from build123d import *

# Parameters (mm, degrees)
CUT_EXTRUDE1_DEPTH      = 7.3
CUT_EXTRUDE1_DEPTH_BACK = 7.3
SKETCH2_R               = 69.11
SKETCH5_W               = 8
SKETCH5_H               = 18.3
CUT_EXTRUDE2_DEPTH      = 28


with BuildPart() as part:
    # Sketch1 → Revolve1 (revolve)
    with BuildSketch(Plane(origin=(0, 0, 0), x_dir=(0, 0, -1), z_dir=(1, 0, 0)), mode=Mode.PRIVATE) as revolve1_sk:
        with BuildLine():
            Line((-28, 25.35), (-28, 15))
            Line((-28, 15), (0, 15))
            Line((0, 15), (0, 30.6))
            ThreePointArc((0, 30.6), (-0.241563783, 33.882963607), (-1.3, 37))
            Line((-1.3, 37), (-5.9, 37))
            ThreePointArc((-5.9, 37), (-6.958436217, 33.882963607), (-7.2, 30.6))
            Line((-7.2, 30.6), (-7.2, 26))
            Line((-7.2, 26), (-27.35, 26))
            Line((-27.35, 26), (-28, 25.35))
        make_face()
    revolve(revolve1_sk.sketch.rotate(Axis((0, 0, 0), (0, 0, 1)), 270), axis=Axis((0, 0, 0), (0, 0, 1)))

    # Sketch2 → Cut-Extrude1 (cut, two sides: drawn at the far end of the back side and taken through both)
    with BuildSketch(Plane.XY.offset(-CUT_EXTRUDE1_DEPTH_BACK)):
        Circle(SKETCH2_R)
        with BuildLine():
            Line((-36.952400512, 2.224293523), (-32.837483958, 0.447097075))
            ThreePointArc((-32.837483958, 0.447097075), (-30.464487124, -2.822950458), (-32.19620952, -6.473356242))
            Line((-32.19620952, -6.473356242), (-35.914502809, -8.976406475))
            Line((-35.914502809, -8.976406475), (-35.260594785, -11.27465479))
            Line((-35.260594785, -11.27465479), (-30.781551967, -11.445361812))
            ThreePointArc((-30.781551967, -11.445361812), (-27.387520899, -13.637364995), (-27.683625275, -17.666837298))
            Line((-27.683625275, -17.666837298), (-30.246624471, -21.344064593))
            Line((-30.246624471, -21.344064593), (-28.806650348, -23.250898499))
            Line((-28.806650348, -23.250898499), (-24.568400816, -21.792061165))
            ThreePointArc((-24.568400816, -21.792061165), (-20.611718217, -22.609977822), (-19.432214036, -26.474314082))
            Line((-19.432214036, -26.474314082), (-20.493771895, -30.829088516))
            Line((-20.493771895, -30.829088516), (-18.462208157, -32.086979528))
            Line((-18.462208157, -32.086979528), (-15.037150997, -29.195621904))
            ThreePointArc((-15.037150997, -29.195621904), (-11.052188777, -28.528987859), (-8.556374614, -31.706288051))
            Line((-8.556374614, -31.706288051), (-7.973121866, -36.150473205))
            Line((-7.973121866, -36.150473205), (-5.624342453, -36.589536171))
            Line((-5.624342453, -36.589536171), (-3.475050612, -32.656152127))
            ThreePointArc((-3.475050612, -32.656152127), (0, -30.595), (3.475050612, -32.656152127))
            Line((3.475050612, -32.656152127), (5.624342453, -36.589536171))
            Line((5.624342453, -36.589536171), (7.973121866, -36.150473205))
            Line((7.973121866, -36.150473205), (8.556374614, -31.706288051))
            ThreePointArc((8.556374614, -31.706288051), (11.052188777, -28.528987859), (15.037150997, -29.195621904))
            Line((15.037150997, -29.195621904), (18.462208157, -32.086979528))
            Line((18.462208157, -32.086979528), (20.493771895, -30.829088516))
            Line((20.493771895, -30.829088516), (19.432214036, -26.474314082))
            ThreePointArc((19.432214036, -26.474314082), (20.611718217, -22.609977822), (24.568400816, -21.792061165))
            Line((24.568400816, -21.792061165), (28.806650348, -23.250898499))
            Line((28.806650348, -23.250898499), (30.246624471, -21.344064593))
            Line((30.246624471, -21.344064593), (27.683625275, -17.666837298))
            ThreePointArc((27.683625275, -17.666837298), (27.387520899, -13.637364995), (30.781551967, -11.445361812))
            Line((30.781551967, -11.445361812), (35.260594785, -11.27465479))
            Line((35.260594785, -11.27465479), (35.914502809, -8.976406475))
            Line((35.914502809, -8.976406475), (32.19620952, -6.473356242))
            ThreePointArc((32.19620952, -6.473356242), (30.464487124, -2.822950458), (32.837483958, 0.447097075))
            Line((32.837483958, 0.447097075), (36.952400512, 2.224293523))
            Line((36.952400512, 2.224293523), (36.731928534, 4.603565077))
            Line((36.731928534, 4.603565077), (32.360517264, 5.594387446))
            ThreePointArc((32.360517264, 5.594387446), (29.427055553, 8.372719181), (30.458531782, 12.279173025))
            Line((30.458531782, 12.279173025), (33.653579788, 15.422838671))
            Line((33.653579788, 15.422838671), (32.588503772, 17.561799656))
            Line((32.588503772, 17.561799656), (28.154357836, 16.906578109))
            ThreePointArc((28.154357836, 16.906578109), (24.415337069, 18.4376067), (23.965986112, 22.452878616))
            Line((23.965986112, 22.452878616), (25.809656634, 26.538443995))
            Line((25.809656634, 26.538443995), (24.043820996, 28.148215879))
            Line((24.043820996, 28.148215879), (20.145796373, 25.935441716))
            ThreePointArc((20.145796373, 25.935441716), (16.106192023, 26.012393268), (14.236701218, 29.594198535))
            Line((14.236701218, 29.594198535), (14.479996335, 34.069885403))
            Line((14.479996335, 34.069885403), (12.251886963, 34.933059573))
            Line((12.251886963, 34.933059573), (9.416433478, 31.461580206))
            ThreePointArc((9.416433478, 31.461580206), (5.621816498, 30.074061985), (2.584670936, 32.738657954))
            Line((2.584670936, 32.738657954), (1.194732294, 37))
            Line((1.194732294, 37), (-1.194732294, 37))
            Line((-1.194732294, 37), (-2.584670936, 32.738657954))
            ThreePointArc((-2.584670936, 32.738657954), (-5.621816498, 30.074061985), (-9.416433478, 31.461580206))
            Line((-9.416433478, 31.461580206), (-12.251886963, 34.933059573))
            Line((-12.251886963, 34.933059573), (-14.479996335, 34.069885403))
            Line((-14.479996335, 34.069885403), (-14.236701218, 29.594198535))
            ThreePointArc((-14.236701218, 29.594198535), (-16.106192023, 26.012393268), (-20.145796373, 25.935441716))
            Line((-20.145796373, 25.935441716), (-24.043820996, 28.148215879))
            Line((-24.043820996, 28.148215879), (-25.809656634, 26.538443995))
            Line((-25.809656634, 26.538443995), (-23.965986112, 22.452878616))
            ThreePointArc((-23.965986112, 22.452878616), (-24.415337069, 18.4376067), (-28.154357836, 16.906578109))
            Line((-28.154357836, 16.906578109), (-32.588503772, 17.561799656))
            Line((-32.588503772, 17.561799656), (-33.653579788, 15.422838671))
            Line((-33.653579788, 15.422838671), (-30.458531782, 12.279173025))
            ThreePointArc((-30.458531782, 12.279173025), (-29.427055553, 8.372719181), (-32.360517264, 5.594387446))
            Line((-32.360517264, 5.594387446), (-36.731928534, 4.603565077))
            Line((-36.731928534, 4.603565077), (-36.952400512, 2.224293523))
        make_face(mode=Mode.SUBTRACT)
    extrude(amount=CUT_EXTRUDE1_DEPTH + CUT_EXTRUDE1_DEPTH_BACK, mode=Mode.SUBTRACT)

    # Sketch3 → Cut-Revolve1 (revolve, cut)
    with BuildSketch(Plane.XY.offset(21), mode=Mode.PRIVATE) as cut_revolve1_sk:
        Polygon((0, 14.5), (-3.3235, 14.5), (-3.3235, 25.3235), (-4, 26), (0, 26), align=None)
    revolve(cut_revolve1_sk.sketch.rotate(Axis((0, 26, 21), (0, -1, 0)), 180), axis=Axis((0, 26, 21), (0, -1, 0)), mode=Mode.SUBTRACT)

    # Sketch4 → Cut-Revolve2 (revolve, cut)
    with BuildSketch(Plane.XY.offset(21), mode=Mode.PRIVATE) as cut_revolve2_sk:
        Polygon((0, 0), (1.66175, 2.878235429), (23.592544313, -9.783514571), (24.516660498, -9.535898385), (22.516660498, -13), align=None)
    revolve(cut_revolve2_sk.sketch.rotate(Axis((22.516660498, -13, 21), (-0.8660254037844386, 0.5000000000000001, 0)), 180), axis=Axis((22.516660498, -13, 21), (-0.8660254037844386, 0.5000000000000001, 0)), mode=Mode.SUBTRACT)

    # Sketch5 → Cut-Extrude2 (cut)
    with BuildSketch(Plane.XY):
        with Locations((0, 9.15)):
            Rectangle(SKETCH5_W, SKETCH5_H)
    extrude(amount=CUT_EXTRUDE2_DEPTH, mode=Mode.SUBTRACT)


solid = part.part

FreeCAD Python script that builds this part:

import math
import FreeCAD as App
import Part
import Sketcher
from FreeCAD import Vector
Q = App.Units.Quantity

doc = App.newDocument("Part")
params = doc.addObject("Spreadsheet::Sheet", "Params")
for row, (alias, value) in enumerate([
    ("sketch1_radius", "13 mm"),
    ("sketch1_height", "28 mm"),
    ("sketch1_width", "15.6 mm"),
    ("sketch1_width2", "4.6 mm"),
    ("sketch1_width3", "10.35 mm"),
    ("revolution_angle", "360 deg"),
    ("sketch2_diameter", "138.22 mm"),
    ("sketch2_radius", "3.96 mm"),
    ("sketch3_width", "4 mm"),
    ("sketch3_height", "11.5 mm"),
    ("groove_angle", "360 deg"),
    ("sketch4_length", "26 mm"),
    ("sketch4_length2", "4 mm"),
    ("groove2_angle", "360 deg"),
    ("sketch5_width", "8 mm"),
    ("sketch5_height", "18.3 mm"),
    ("pocket2_length", "28 mm"),
], start=1):
    params.set(f"A{row}", alias)
    params.set(f"B{row}", "=" + value)
    params.setAlias(f"B{row}", alias)

body = doc.addObject("PartDesign::Body", "Body")

# Sketch on YZ plane
sketch1 = doc.addObject("Sketcher::SketchObject", "Sketch")
body.addObject(sketch1)
sketch1.AttachmentSupport = (doc.YZ_Plane, [""])
sketch1.MapMode = "FlatFace"
sketch1.addGeometry([
    Part.LineSegment(Vector(25.35, 28, 0), Vector(15, 28, 0)),  # 0
    Part.LineSegment(Vector(15, 28, 0), Vector(15, 0, 0)),  # 1
    Part.LineSegment(Vector(15, 0, 0), Vector(30.6, 0, 0)),  # 2
    Part.ArcOfCircle(Part.Circle(Vector(31.295185, 12.981399, 0), Vector(0, 0, 1), 13), math.radians(-93.065396), math.radians(-63.970621)),  # 3
    Part.LineSegment(Vector(37, 1.3, 0), Vector(37, 5.9, 0)),  # 4
    Part.ArcOfCircle(Part.Circle(Vector(31.295185, -5.781399, 0), Vector(0, 0, 1), 13), math.radians(63.970621), math.radians(93.065396)),  # 5
    Part.LineSegment(Vector(30.6, 7.2, 0), Vector(26, 7.2, 0)),  # 6
    Part.LineSegment(Vector(26, 7.2, 0), Vector(26, 27.35, 0)),  # 7
    Part.LineSegment(Vector(26, 27.35, 0), Vector(25.35, 28, 0)),  # 8
], False)
sketch1.addConstraint([
    Sketcher.Constraint("Coincident", 0, 2, 1, 1),
    Sketcher.Constraint("Coincident", 1, 2, 2, 1),
    Sketcher.Constraint("Coincident", 2, 2, 3, 1),
    Sketcher.Constraint("Coincident", 3, 2, 4, 1),
    Sketcher.Constraint("Coincident", 4, 2, 5, 1),
    Sketcher.Constraint("Coincident", 5, 2, 6, 1),
    Sketcher.Constraint("Coincident", 6, 2, 7, 1),
    Sketcher.Constraint("Coincident", 7, 2, 8, 1),
    Sketcher.Constraint("Coincident", 8, 2, 0, 1),
    Sketcher.Constraint("Horizontal", 0),
    Sketcher.Constraint("Vertical", 1),
    Sketcher.Constraint("Horizontal", 2),
    Sketcher.Constraint("Vertical", 4),
    Sketcher.Constraint("Horizontal", 6),
    Sketcher.Constraint("Vertical", 7),
    Sketcher.Constraint("Equal", 3, 5),
    Sketcher.Constraint("PointOnObject", 1, 2, -1),
    Sketcher.Constraint("Vertical", 3, 3, 5, 3),
    Sketcher.Constraint("Vertical", 2, 2, 5, 2),
    Sketcher.Constraint("Equal", 6, 4),
    Sketcher.Constraint("Radius", 3, Q("13 mm")),
    Sketcher.Constraint("DistanceY", 1, 2, 1, 1, Q("28 mm")),
    Sketcher.Constraint("Angle", 8, Q("135 deg")),
    Sketcher.Constraint("DistanceX", 2, 1, 2, 2, Q("15.6 mm")),
    Sketcher.Constraint("DistanceX", 6, 2, 6, 1, Q("4.6 mm")),
    Sketcher.Constraint("DistanceX", -1, 1, 0, 2, Q("15 mm")),
    Sketcher.Constraint("DistanceX", -1, 1, 3, 2, Q("37 mm")),
    Sketcher.Constraint("DistanceX", 0, 2, 0, 1, Q("10.35 mm")),
    Sketcher.Constraint("DistanceY", 7, 1, 7, 2, Q("20.15 mm")),
])
sketch1.setExpression("Constraints[20]", "Params.sketch1_radius")
sketch1.setExpression("Constraints[21]", "Params.sketch1_height")
sketch1.setExpression("Constraints[23]", "Params.sketch1_width")
sketch1.setExpression("Constraints[24]", "Params.sketch1_width2")
sketch1.setExpression("Constraints[27]", "Params.sketch1_width3")
revolution = doc.addObject("PartDesign::Revolution", "Revolution")
body.addObject(revolution)
revolution.Profile = sketch1
revolution.ReferenceAxis = (sketch1, ["V_Axis"])
revolution.setExpression("Angle", "Params.revolution_angle")

# Sketch on XY plane
sketch2 = doc.addObject("Sketcher::SketchObject", "Sketch001")
body.addObject(sketch2)
sketch2.AttachmentSupport = (doc.XY_Plane, [""])
sketch2.MapMode = "FlatFace"
sketch2.addGeometry([
    Part.Circle(Vector(0, 0, 0), Vector(0, 0, 1), 69.11),  # 0
    Part.LineSegment(Vector(-32.837484, 0.447097, 0), Vector(-36.952401, 2.224294, 0)),  # 1
    Part.LineSegment(Vector(-36.952401, 2.224294, 0), Vector(-36.731929, 4.603565, 0)),  # 2
    Part.LineSegment(Vector(-36.731929, 4.603565, 0), Vector(-32.360517, 5.594387, 0)),  # 3
    Part.ArcOfCircle(Part.Circle(Vector(-33.235885, 9.456425, 0), Vector(0, 0, 1), 3.96), math.radians(-77.229142), math.radians(45.464436)),  # 4
    Part.LineSegment(Vector(-30.458532, 12.279173, 0), Vector(-33.65358, 15.422839, 0)),  # 5
    Part.LineSegment(Vector(-33.65358, 15.422839, 0), Vector(-32.588504, 17.5618, 0)),  # 6
    Part.LineSegment(Vector(-32.588504, 17.5618, 0), Vector(-28.154358, 16.906578, 0)),  # 7
    Part.ArcOfCircle(Part.Circle(Vector(-27.575485, 20.82404, 0), Vector(0, 0, 1), 3.96), math.radians(-98.405613), math.radians(24.287966)),  # 8
    Part.LineSegment(Vector(-23.965986, 22.452879, 0), Vector(-25.809657, 26.538444, 0)),  # 9
    Part.LineSegment(Vector(-25.809657, 26.538444, 0), Vector(-24.043821, 28.148216, 0)),  # 10
    Part.LineSegment(Vector(-24.043821, 28.148216, 0), Vector(-20.145796, 25.935442, 0)),  # 11
    Part.ArcOfCircle(Part.Circle(Vector(-18.190863, 29.379253, 0), Vector(0, 0, 1), 3.96), math.radians(-119.582083), math.radians(3.111495)),  # 12
    Part.LineSegment(Vector(-14.236701, 29.594199, 0), Vector(-14.479996, 34.069885, 0)),  # 13
    Part.LineSegment(Vector(-14.479996, 34.069885, 0), Vector(-12.251887, 34.93306, 0)),  # 14
    Part.LineSegment(Vector(-12.251887, 34.93306, 0), Vector(-9.416433, 31.46158, 0)),  # 15
    Part.ArcOfCircle(Part.Circle(Vector(-6.349465, 33.966635, 0), Vector(0, 0, 1), 3.96), math.radians(-140.758554), math.radians(-18.064976)),  # 16
    Part.LineSegment(Vector(-2.584671, 32.738658, 0), Vector(-1.194732, 37, 0)),  # 17
    Part.LineSegment(Vector(-1.194732, 37, 0), Vector(1.194732, 37, 0)),  # 18
    Part.LineSegment(Vector(1.194732, 37, 0), Vector(2.584671, 32.738658, 0)),  # 19
    Part.ArcOfCircle(Part.Circle(Vector(6.349465, 33.966635, 0), Vector(0, 0, 1), 3.96), math.radians(-161.935024), math.radians(-39.241446)),  # 20
    Part.LineSegment(Vector(9.416433, 31.46158, 0), Vector(12.251887, 34.93306, 0)),  # 21
    Part.LineSegment(Vector(12.251887, 34.93306, 0), Vector(14.479996, 34.069885, 0)),  # 22
    Part.LineSegment(Vector(14.479996, 34.069885, 0), Vector(14.236701, 29.594199, 0)),  # 23
    Part.ArcOfCircle(Part.Circle(Vector(18.190863, 29.379253, 0), Vector(0, 0, 1), 3.96), math.radians(176.888505), math.radians(299.582083)),  # 24
    Part.LineSegment(Vector(20.145796, 25.935442, 0), Vector(24.043821, 28.148216, 0)),  # 25
    Part.LineSegment(Vector(24.043821, 28.148216, 0), Vector(25.809657, 26.538444, 0)),  # 26
    Part.LineSegment(Vector(25.809657, 26.538444, 0), Vector(23.965986, 22.452879, 0)),  # 27
    Part.ArcOfCircle(Part.Circle(Vector(27.575485, 20.82404, 0), Vector(0, 0, 1), 3.96), math.radians(155.712034), math.radians(278.405613)),  # 28
    Part.LineSegment(Vector(28.154358, 16.906578, 0), Vector(32.588504, 17.5618, 0)),  # 29
    Part.LineSegment(Vector(32.588504, 17.5618, 0), Vector(33.65358, 15.422839, 0)),  # 30
    Part.LineSegment(Vector(33.65358, 15.422839, 0), Vector(30.458532, 12.279173, 0)),  # 31
    Part.ArcOfCircle(Part.Circle(Vector(33.235885, 9.456425, 0), Vector(0, 0, 1), 3.96), math.radians(134.535564), math.radians(257.229142)),  # 32
    Part.LineSegment(Vector(32.360517, 5.594387, 0), Vector(36.731929, 4.603565, 0)),  # 33
    Part.LineSegment(Vector(36.731929, 4.603565, 0), Vector(36.952401, 2.224294, 0)),  # 34
    Part.LineSegment(Vector(36.952401, 2.224294, 0), Vector(32.837484, 0.447097, 0)),  # 35
    Part.ArcOfCircle(Part.Circle(Vector(34.407594, -3.188333, 0), Vector(0, 0, 1), 3.96), math.radians(113.359093), math.radians(236.052671)),  # 36
    Part.LineSegment(Vector(32.19621, -6.473356, 0), Vector(35.914503, -8.976406, 0)),  # 37
    Part.LineSegment(Vector(35.914503, -8.976406, 0), Vector(35.260595, -11.274655, 0)),  # 38
    Part.LineSegment(Vector(35.260595, -11.274655, 0), Vector(30.781552, -11.445362, 0)),  # 39
    Part.ArcOfCircle(Part.Circle(Vector(30.932368, -15.402489, 0), Vector(0, 0, 1), 3.96), math.radians(92.182623), math.radians(214.876201)),  # 40
    Part.LineSegment(Vector(27.683625, -17.666837, 0), Vector(30.246624, -21.344065, 0)),  # 41
    Part.LineSegment(Vector(30.246624, -21.344065, 0), Vector(28.80665, -23.250898, 0)),  # 42
    Part.LineSegment(Vector(28.80665, -23.250898, 0), Vector(24.568401, -21.792061, 0)),  # 43
    Part.ArcOfCircle(Part.Circle(Vector(23.279553, -25.536453, 0), Vector(0, 0, 1), 3.96), math.radians(71.006152), math.radians(193.69973)),  # 44
    Part.LineSegment(Vector(19.432214, -26.474314, 0), Vector(20.493772, -30.829089, 0)),  # 45
    Part.LineSegment(Vector(20.493772, -30.829089, 0), Vector(18.462208, -32.08698, 0)),  # 46
    Part.LineSegment(Vector(18.462208, -32.08698, 0), Vector(15.037151, -29.195622, 0)),  # 47
    Part.ArcOfCircle(Part.Circle(Vector(12.482706, -32.221578, 0), Vector(0, 0, 1), 3.96), math.radians(49.829681), math.radians(172.52326)),  # 48
    Part.LineSegment(Vector(8.556375, -31.706288, 0), Vector(7.973122, -36.150473, 0)),  # 49
    Part.LineSegment(Vector(7.973122, -36.150473, 0), Vector(5.624342, -36.589536, 0)),  # 50
    Part.LineSegment(Vector(5.624342, -36.589536, 0), Vector(3.475051, -32.656152, 0)),  # 51
    Part.ArcOfCircle(Part.Circle(Vector(0, -34.555, 0), Vector(0, 0, 1), 3.96), math.radians(28.653211), math.radians(151.346789)),  # 52
    Part.LineSegment(Vector(-3.475051, -32.656152, 0), Vector(-5.624342, -36.589536, 0)),  # 53
    Part.LineSegment(Vector(-5.624342, -36.589536, 0), Vector(-7.973122, -36.150473, 0)),  # 54
    Part.LineSegment(Vector(-7.973122, -36.150473, 0), Vector(-8.556375, -31.706288, 0)),  # 55
    Part.ArcOfCircle(Part.Circle(Vector(-12.482706, -32.221578, 0), Vector(0, 0, 1), 3.96), math.radians(7.47674), math.radians(130.170319)),  # 56
    Part.LineSegment(Vector(-15.037151, -29.195622, 0), Vector(-18.462208, -32.08698, 0)),  # 57
    Part.LineSegment(Vector(-18.462208, -32.08698, 0), Vector(-20.493772, -30.829089, 0)),  # 58
    Part.LineSegment(Vector(-20.493772, -30.829089, 0), Vector(-19.432214, -26.474314, 0)),  # 59
    Part.ArcOfCircle(Part.Circle(Vector(-23.279553, -25.536453, 0), Vector(0, 0, 1), 3.96), math.radians(-13.69973), math.radians(108.993848)),  # 60
    Part.LineSegment(Vector(-24.568401, -21.792061, 0), Vector(-28.80665, -23.250898, 0)),  # 61
    Part.LineSegment(Vector(-28.80665, -23.250898, 0), Vector(-30.246624, -21.344065, 0)),  # 62
    Part.LineSegment(Vector(-30.246624, -21.344065, 0), Vector(-27.683625, -17.666837, 0)),  # 63
    Part.ArcOfCircle(Part.Circle(Vector(-30.932368, -15.402489, 0), Vector(0, 0, 1), 3.96), math.radians(-34.876201), math.radians(87.817377)),  # 64
    Part.LineSegment(Vector(-30.781552, -11.445362, 0), Vector(-35.260595, -11.274655, 0)),  # 65
    Part.LineSegment(Vector(-35.260595, -11.274655, 0), Vector(-35.914503, -8.976406, 0)),  # 66
    Part.LineSegment(Vector(-35.914503, -8.976406, 0), Vector(-32.19621, -6.473356, 0)),  # 67
    Part.ArcOfCircle(Part.Circle(Vector(-34.407594, -3.188333, 0), Vector(0, 0, 1), 3.96), math.radians(-56.052671), math.radians(66.640907)),  # 68
], False)
sketch2.addConstraint([
    Sketcher.Constraint("Coincident", 1, 2, 2, 1),
    Sketcher.Constraint("Coincident", 2, 2, 3, 1),
    Sketcher.Constraint("Tangent", 3, 2, 4, 1),
    Sketcher.Constraint("Tangent", 4, 2, 5, 1),
    Sketcher.Constraint("Coincident", 5, 2, 6, 1),
    Sketcher.Constraint("Coincident", 6, 2, 7, 1),
    Sketcher.Constraint("Tangent", 7, 2, 8, 1),
    Sketcher.Constraint("Tangent", 8, 2, 9, 1),
    Sketcher.Constraint("Coincident", 9, 2, 10, 1),
    Sketcher.Constraint("Coincident", 10, 2, 11, 1),
    Sketcher.Constraint("Tangent", 11, 2, 12, 1),
    Sketcher.Constraint("Tangent", 12, 2, 13, 1),
    Sketcher.Constraint("Coincident", 13, 2, 14, 1),
    Sketcher.Constraint("Coincident", 14, 2, 15, 1),
    Sketcher.Constraint("Tangent", 15, 2, 16, 1),
    Sketcher.Constraint("Tangent", 16, 2, 17, 1),
    Sketcher.Constraint("Coincident", 17, 2, 18, 1),
    Sketcher.Constraint("Coincident", 18, 2, 19, 1),
    Sketcher.Constraint("Tangent", 19, 2, 20, 1),
    Sketcher.Constraint("Tangent", 20, 2, 21, 1),
    Sketcher.Constraint("Coincident", 21, 2, 22, 1),
    Sketcher.Constraint("Coincident", 22, 2, 23, 1),
    Sketcher.Constraint("Tangent", 23, 2, 24, 1),
    Sketcher.Constraint("Tangent", 24, 2, 25, 1),
    Sketcher.Constraint("Coincident", 25, 2, 26, 1),
    Sketcher.Constraint("Coincident", 26, 2, 27, 1),
    Sketcher.Constraint("Tangent", 27, 2, 28, 1),
    Sketcher.Constraint("Tangent", 28, 2, 29, 1),
    Sketcher.Constraint("Coincident", 29, 2, 30, 1),
    Sketcher.Constraint("Coincident", 30, 2, 31, 1),
    Sketcher.Constraint("Tangent", 31, 2, 32, 1),
    Sketcher.Constraint("Tangent", 32, 2, 33, 1),
    Sketcher.Constraint("Coincident", 33, 2, 34, 1),
    Sketcher.Constraint("Coincident", 34, 2, 35, 1),
    Sketcher.Constraint("Tangent", 35, 2, 36, 1),
    Sketcher.Constraint("Tangent", 36, 2, 37, 1),
    Sketcher.Constraint("Coincident", 37, 2, 38, 1),
    Sketcher.Constraint("Coincident", 38, 2, 39, 1),
    Sketcher.Constraint("Tangent", 39, 2, 40, 1),
    Sketcher.Constraint("Tangent", 40, 2, 41, 1),
    Sketcher.Constraint("Coincident", 41, 2, 42, 1),
    Sketcher.Constraint("Coincident", 42, 2, 43, 1),
    Sketcher.Constraint("Tangent", 43, 2, 44, 1),
    Sketcher.Constraint("Tangent", 44, 2, 45, 1),
    Sketcher.Constraint("Coincident", 45, 2, 46, 1),
    Sketcher.Constraint("Coincident", 46, 2, 47, 1),
    Sketcher.Constraint("Tangent", 47, 2, 48, 1),
    Sketcher.Constraint("Tangent", 48, 2, 49, 1),
    Sketcher.Constraint("Coincident", 49, 2, 50, 1),
    Sketcher.Constraint("Coincident", 50, 2, 51, 1),
    Sketcher.Constraint("Tangent", 51, 2, 52, 1),
    Sketcher.Constraint("Tangent", 52, 2, 53, 1),
    Sketcher.Constraint("Coincident", 53, 2, 54, 1),
    Sketcher.Constraint("Coincident", 54, 2, 55, 1),
    Sketcher.Constraint("Tangent", 55, 2, 56, 1),
    Sketcher.Constraint("Tangent", 56, 2, 57, 1),
    Sketcher.Constraint("Coincident", 57, 2, 58, 1),
    Sketcher.Constraint("Coincident", 58, 2, 59, 1),
    Sketcher.Constraint("Tangent", 59, 2, 60, 1),
    Sketcher.Constraint("Tangent", 60, 2, 61, 1),
    Sketcher.Constraint("Coincident", 61, 2, 62, 1),
    Sketcher.Constraint("Coincident", 62, 2, 63, 1),
    Sketcher.Constraint("Tangent", 63, 2, 64, 1),
    Sketcher.Constraint("Tangent", 64, 2, 65, 1),
    Sketcher.Constraint("Coincident", 65, 2, 66, 1),
    Sketcher.Constraint("Coincident", 66, 2, 67, 1),
    Sketcher.Constraint("Tangent", 67, 2, 68, 1),
    Sketcher.Constraint("Tangent", 68, 2, 1, 1),
    Sketcher.Constraint("Horizontal", 18),
    Sketcher.Constraint("Coincident", 0, 3, -1, 1),
    Sketcher.Constraint("Equal", 4, 8),
    Sketcher.Constraint("Equal", 8, 12),
    Sketcher.Constraint("Equal", 12, 16),
    Sketcher.Constraint("Equal", 16, 20),
    Sketcher.Constraint("Equal", 20, 24),
    Sketcher.Constraint("Equal", 24, 28),
    Sketcher.Constraint("Equal", 28, 32),
    Sketcher.Constraint("Equal", 32, 36),
    Sketcher.Constraint("Equal", 36, 40),
    Sketcher.Constraint("Equal", 40, 44),
    Sketcher.Constraint("Equal", 44, 48),
    Sketcher.Constraint("Equal", 48, 52),
    Sketcher.Constraint("Equal", 52, 56),
    Sketcher.Constraint("Equal", 56, 60),
    Sketcher.Constraint("Equal", 60, 64),
    Sketcher.Constraint("Equal", 64, 68),
    Sketcher.Constraint("Symmetric", 16, 3, 20, 3, -2),
    Sketcher.Constraint("Symmetric", 12, 3, 24, 3, -2),
    Sketcher.Constraint("Symmetric", 8, 3, 28, 3, -2),
    Sketcher.Constraint("Symmetric", 4, 3, 32, 3, -2),
    Sketcher.Constraint("Symmetric", 48, 3, 56, 3, -2),
    Sketcher.Constraint("Symmetric", 44, 3, 60, 3, -2),
    Sketcher.Constraint("Symmetric", 40, 3, 64, 3, -2),
    Sketcher.Constraint("Symmetric", 36, 3, 68, 3, -2),
    Sketcher.Constraint("Symmetric", 14, 2, 21, 2, -2),
    Sketcher.Constraint("Symmetric", 13, 2, 22, 2, -2),
    Sketcher.Constraint("Symmetric", 10, 2, 25, 2, -2),
    Sketcher.Constraint("Symmetric", 9, 2, 26, 2, -2),
    Sketcher.Constraint("Symmetric", 6, 2, 29, 2, -2),
    Sketcher.Constraint("Symmetric", 5, 2, 30, 2, -2),
    Sketcher.Constraint("Symmetric", 2, 2, 33, 2, -2),
    Sketcher.Constraint("Symmetric", 1, 2, 34, 2, -2),
    Sketcher.Constraint("Symmetric", 51, 2, 52, 2, -2),
    Sketcher.Constraint("Symmetric", 49, 2, 54, 2, -2),
    Sketcher.Constraint("Symmetric", 46, 2, 57, 2, -2),
    Sketcher.Constraint("Symmetric", 45, 2, 58, 2, -2),
    Sketcher.Constraint("Symmetric", 42, 2, 61, 2, -2),
    Sketcher.Constraint("Symmetric", 41, 2, 62, 2, -2),
    Sketcher.Constraint("Symmetric", 38, 2, 65, 2, -2),
    Sketcher.Constraint("Symmetric", 37, 2, 66, 2, -2),
    Sketcher.Constraint("Horizontal", 16, 2, 19, 2),
    Sketcher.Constraint("Horizontal", 50, 2, 53, 2),
    Sketcher.Constraint("Equal", 1, 3),
    Sketcher.Constraint("Equal", 3, 5),
    Sketcher.Constraint("Equal", 2, 6),
    Sketcher.Constraint("Equal", 5, 7),
    Sketcher.Constraint("Equal", 7, 9),
    Sketcher.Constraint("Equal", 6, 10),
    Sketcher.Constraint("Equal", 9, 11),
    Sketcher.Constraint("Equal", 11, 13),
    Sketcher.Constraint("Equal", 10, 14),
    Sketcher.Constraint("Equal", 13, 15),
    Sketcher.Constraint("Equal", 15, 17),
    Sketcher.Constraint("Equal", 35, 37),
    Sketcher.Constraint("Equal", 34, 38),
    Sketcher.Constraint("Equal", 37, 39),
    Sketcher.Constraint("Equal", 39, 41),
    Sketcher.Constraint("Equal", 38, 42),
    Sketcher.Constraint("Equal", 41, 43),
    Sketcher.Constraint("Equal", 43, 45),
    Sketcher.Constraint("Equal", 42, 46),
    Sketcher.Constraint("Equal", 45, 47),
    Sketcher.Constraint("Equal", 47, 49),
    Sketcher.Constraint("Equal", 46, 50),
    Sketcher.Constraint("Equal", 49, 51),
    Sketcher.Constraint("Diameter", 0, Q("138.22 mm")),
    Sketcher.Constraint("Radius", 4, Q("3.96 mm")),
    Sketcher.Constraint("DistanceY", -1, 1, 17, 2, Q("37 mm")),
    Sketcher.Constraint("DistanceY", 52, 3, -1, 1, Q("34.555 mm")),
    Sketcher.Constraint("DistanceX", 1, 2, -1, 1, Q("36.952401 mm")),
    Sketcher.Constraint("DistanceY", -1, 1, 6, 2, Q("17.5618 mm")),
    Sketcher.Constraint("DistanceX", 12, 2, -1, 1, Q("14.236701 mm")),
    Sketcher.Constraint("DistanceY", -1, 1, 12, 2, Q("29.594199 mm")),
    Sketcher.Constraint("DistanceY", 42, 2, -1, 1, Q("23.250898 mm")),
    Sketcher.Constraint("DistanceX", -1, 1, 43, 2, Q("24.568401 mm")),
    Sketcher.Constraint("DistanceX", 18, 1, 18, 2, Q("2.389465 mm")),
    Sketcher.Constraint("DistanceY", -1, 1, 8, 3, Q("20.82404 mm")),
    Sketcher.Constraint("DistanceY", 40, 3, -1, 1, Q("15.402489 mm")),
    Sketcher.Constraint("DistanceX", 2, 2, -1, 1, Q("36.731929 mm")),
    Sketcher.Constraint("DistanceX", 4, 2, -1, 1, Q("30.458532 mm")),
    Sketcher.Constraint("DistanceX", 5, 2, -1, 1, Q("33.65358 mm")),
    Sketcher.Constraint("DistanceY", -1, 1, 5, 2, Q("15.422839 mm")),
    Sketcher.Constraint("DistanceY", -1, 1, 8, 2, Q("22.452879 mm")),
    Sketcher.Constraint("DistanceX", 10, 2, -1, 1, Q("24.043821 mm")),
    Sketcher.Constraint("DistanceY", -1, 1, 11, 2, Q("25.935442 mm")),
    Sketcher.Constraint("DistanceY", -1, 1, 14, 2, Q("34.93306 mm")),
    Sketcher.Constraint("DistanceY", -1, 1, 15, 2, Q("31.46158 mm")),
    Sketcher.Constraint("DistanceX", -1, 1, 36, 2, Q("32.19621 mm")),
    Sketcher.Constraint("DistanceX", -1, 1, 39, 2, Q("30.781552 mm")),
    Sketcher.Constraint("DistanceY", 39, 2, -1, 1, Q("11.445362 mm")),
    Sketcher.Constraint("DistanceX", -1, 1, 42, 2, Q("28.80665 mm")),
    Sketcher.Constraint("DistanceX", -1, 1, 45, 2, Q("20.493772 mm")),
    Sketcher.Constraint("DistanceX", -1, 1, 46, 2, Q("18.462208 mm")),
    Sketcher.Constraint("DistanceX", -1, 1, 47, 2, Q("15.037151 mm")),
    Sketcher.Constraint("DistanceY", 48, 2, -1, 1, Q("31.706288 mm")),
])
sketch2.setExpression("Constraints[135]", "Params.sketch2_diameter")
sketch2.setExpression("Constraints[136]", "Params.sketch2_radius")
pocket1 = doc.addObject("PartDesign::Pocket", "Pocket")
body.addObject(pocket1)
pocket1.Profile = sketch2
pocket1.Type = "ThroughAll"
pocket1.Midplane = True

# Sketch on XY plane
sketch3 = doc.addObject("Sketcher::SketchObject", "Sketch002")
body.addObject(sketch3)
sketch3.AttachmentSupport = (doc.XY_Plane, [""])
sketch3.MapMode = "FlatFace"
sketch3.AttachmentOffset = App.Placement(Vector(0, 0, 21), App.Rotation())
sketch3.addGeometry([
    Part.LineSegment(Vector(-3.3235, 14.5, 0), Vector(0, 14.5, 0)),  # 0
    Part.LineSegment(Vector(0, 14.5, 0), Vector(0, 26, 0)),  # 1
    Part.LineSegment(Vector(0, 26, 0), Vector(-4, 26, 0)),  # 2
    Part.LineSegment(Vector(-4, 26, 0), Vector(-3.3235, 25.3235, 0)),  # 3
    Part.LineSegment(Vector(-3.3235, 25.3235, 0), Vector(-3.3235, 14.5, 0)),  # 4
], False)
sketch3.addConstraint([
    Sketcher.Constraint("Coincident", 0, 2, 1, 1),
    Sketcher.Constraint("Coincident", 1, 2, 2, 1),
    Sketcher.Constraint("Coincident", 2, 2, 3, 1),
    Sketcher.Constraint("Coincident", 3, 2, 4, 1),
    Sketcher.Constraint("Coincident", 4, 2, 0, 1),
    Sketcher.Constraint("Horizontal", 0),
    Sketcher.Constraint("Vertical", 1),
    Sketcher.Constraint("Horizontal", 2),
    Sketcher.Constraint("Vertical", 4),
    Sketcher.Constraint("PointOnObject", 0, 2, -2),
    Sketcher.Constraint("DistanceX", 2, 2, 2, 1, Q("4 mm")),
    Sketcher.Constraint("Angle", 3, Q("-45 deg")),
    Sketcher.Constraint("DistanceY", 1, 1, 1, 2, Q("11.5 mm")),
    Sketcher.Constraint("DistanceY", -1, 1, 1, 2, Q("26 mm")),
    Sketcher.Constraint("DistanceX", 0, 1, 0, 2, Q("3.3235 mm")),
])
sketch3.setExpression("Constraints[10]", "Params.sketch3_width")
sketch3.setExpression("Constraints[12]", "Params.sketch3_height")
groove = doc.addObject("PartDesign::Groove", "Groove")
body.addObject(groove)
groove.Profile = sketch3
groove.ReferenceAxis = (sketch3, ["V_Axis"])
groove.setExpression("Angle", "Params.groove_angle")

# Sketch on XY plane
sketch4 = doc.addObject("Sketcher::SketchObject", "Sketch003")
body.addObject(sketch4)
sketch4.AttachmentSupport = (doc.XY_Plane, [""])
sketch4.MapMode = "FlatFace"
sketch4.AttachmentOffset = App.Placement(Vector(0, 0, 21), App.Rotation())
sketch4.addGeometry([
    Part.LineSegment(Vector(1.66175, 2.878235, 0), Vector(0, 0, 0)),  # 0
    Part.LineSegment(Vector(0, 0, 0), Vector(22.51666, -13, 0)),  # 1
    Part.LineSegment(Vector(22.51666, -13, 0), Vector(24.51666, -9.535898, 0)),  # 2
    Part.LineSegment(Vector(24.51666, -9.535898, 0), Vector(23.592544, -9.783515, 0)),  # 3
    Part.LineSegment(Vector(23.592544, -9.783515, 0), Vector(1.66175, 2.878235, 0)),  # 4
], False)
sketch4.addGeometry(Part.LineSegment(Vector(22.51666, -13, 0), Vector(0, 0, 0)), True)  # axis
sketch4.addConstraint([
    Sketcher.Constraint("Coincident", 0, 2, 1, 1),
    Sketcher.Constraint("Coincident", 1, 2, 2, 1),
    Sketcher.Constraint("Coincident", 2, 2, 3, 1),
    Sketcher.Constraint("Coincident", 3, 2, 4, 1),
    Sketcher.Constraint("Coincident", 4, 2, 0, 1),
    Sketcher.Constraint("Coincident", 0, 2, -1, 1),
    Sketcher.Constraint("Coincident", 5, 2, -1, 1),
    Sketcher.Constraint("Coincident", 5, 1, 1, 2),
    Sketcher.Constraint("Perpendicular", 0, 1),
    Sketcher.Constraint("Perpendicular", 1, 2),
    Sketcher.Constraint("Perpendicular", 2, 4),
    Sketcher.Constraint("Angle", 0, Q("-120 deg")),
    Sketcher.Constraint("Angle", 3, Q("-165 deg")),
    Sketcher.Constraint("Distance", 1, Q("26 mm")),
    Sketcher.Constraint("Distance", 2, Q("4 mm")),
    Sketcher.Constraint("Distance", 0, Q("3.3235 mm")),
])
sketch4.setExpression("Constraints[13]", "Params.sketch4_length")
sketch4.setExpression("Constraints[14]", "Params.sketch4_length2")
groove2 = doc.addObject("PartDesign::Groove", "Groove001")
body.addObject(groove2)
groove2.Profile = sketch4
groove2.ReferenceAxis = (sketch4, ["Axis0"])
groove2.setExpression("Angle", "Params.groove2_angle")

# Sketch on XY plane
sketch5 = doc.addObject("Sketcher::SketchObject", "Sketch004")
body.addObject(sketch5)
sketch5.AttachmentSupport = (doc.XY_Plane, [""])
sketch5.MapMode = "FlatFace"
sketch5.addGeometry([
    Part.LineSegment(Vector(-4, 18.3, 0), Vector(-4, 0, 0)),
    Part.LineSegment(Vector(-4, 0, 0), Vector(4, 0, 0)),
    Part.LineSegment(Vector(4, 0, 0), Vector(4, 18.3, 0)),
    Part.LineSegment(Vector(4, 18.3, 0), Vector(-4, 18.3, 0)),
], False)
sketch5.addConstraint([
    Sketcher.Constraint("Coincident", 0, 2, 1, 1),
    Sketcher.Constraint("Coincident", 1, 2, 2, 1),
    Sketcher.Constraint("Coincident", 2, 2, 3, 1),
    Sketcher.Constraint("Coincident", 3, 2, 0, 1),
    Sketcher.Constraint("Vertical", 0),
    Sketcher.Constraint("Horizontal", 1),
    Sketcher.Constraint("Vertical", 2),
    Sketcher.Constraint("Horizontal", 3),
    Sketcher.Constraint("Symmetric", 0, 2, 1, 2, -1, 1),
    Sketcher.Constraint("DistanceX", 1, 1, 1, 2, Q("8 mm")),
    Sketcher.Constraint("DistanceY", 0, 2, 0, 1, Q("18.3 mm")),
])
sketch5.setExpression("Constraints[9]", "Params.sketch5_width")
sketch5.setExpression("Constraints[10]", "Params.sketch5_height")
pocket2 = doc.addObject("PartDesign::Pocket", "Pocket001")
body.addObject(pocket2)
pocket2.Profile = sketch5
pocket2.setExpression("Length", "Params.pocket2_length")
pocket2.Reversed = True

doc.recompute()
